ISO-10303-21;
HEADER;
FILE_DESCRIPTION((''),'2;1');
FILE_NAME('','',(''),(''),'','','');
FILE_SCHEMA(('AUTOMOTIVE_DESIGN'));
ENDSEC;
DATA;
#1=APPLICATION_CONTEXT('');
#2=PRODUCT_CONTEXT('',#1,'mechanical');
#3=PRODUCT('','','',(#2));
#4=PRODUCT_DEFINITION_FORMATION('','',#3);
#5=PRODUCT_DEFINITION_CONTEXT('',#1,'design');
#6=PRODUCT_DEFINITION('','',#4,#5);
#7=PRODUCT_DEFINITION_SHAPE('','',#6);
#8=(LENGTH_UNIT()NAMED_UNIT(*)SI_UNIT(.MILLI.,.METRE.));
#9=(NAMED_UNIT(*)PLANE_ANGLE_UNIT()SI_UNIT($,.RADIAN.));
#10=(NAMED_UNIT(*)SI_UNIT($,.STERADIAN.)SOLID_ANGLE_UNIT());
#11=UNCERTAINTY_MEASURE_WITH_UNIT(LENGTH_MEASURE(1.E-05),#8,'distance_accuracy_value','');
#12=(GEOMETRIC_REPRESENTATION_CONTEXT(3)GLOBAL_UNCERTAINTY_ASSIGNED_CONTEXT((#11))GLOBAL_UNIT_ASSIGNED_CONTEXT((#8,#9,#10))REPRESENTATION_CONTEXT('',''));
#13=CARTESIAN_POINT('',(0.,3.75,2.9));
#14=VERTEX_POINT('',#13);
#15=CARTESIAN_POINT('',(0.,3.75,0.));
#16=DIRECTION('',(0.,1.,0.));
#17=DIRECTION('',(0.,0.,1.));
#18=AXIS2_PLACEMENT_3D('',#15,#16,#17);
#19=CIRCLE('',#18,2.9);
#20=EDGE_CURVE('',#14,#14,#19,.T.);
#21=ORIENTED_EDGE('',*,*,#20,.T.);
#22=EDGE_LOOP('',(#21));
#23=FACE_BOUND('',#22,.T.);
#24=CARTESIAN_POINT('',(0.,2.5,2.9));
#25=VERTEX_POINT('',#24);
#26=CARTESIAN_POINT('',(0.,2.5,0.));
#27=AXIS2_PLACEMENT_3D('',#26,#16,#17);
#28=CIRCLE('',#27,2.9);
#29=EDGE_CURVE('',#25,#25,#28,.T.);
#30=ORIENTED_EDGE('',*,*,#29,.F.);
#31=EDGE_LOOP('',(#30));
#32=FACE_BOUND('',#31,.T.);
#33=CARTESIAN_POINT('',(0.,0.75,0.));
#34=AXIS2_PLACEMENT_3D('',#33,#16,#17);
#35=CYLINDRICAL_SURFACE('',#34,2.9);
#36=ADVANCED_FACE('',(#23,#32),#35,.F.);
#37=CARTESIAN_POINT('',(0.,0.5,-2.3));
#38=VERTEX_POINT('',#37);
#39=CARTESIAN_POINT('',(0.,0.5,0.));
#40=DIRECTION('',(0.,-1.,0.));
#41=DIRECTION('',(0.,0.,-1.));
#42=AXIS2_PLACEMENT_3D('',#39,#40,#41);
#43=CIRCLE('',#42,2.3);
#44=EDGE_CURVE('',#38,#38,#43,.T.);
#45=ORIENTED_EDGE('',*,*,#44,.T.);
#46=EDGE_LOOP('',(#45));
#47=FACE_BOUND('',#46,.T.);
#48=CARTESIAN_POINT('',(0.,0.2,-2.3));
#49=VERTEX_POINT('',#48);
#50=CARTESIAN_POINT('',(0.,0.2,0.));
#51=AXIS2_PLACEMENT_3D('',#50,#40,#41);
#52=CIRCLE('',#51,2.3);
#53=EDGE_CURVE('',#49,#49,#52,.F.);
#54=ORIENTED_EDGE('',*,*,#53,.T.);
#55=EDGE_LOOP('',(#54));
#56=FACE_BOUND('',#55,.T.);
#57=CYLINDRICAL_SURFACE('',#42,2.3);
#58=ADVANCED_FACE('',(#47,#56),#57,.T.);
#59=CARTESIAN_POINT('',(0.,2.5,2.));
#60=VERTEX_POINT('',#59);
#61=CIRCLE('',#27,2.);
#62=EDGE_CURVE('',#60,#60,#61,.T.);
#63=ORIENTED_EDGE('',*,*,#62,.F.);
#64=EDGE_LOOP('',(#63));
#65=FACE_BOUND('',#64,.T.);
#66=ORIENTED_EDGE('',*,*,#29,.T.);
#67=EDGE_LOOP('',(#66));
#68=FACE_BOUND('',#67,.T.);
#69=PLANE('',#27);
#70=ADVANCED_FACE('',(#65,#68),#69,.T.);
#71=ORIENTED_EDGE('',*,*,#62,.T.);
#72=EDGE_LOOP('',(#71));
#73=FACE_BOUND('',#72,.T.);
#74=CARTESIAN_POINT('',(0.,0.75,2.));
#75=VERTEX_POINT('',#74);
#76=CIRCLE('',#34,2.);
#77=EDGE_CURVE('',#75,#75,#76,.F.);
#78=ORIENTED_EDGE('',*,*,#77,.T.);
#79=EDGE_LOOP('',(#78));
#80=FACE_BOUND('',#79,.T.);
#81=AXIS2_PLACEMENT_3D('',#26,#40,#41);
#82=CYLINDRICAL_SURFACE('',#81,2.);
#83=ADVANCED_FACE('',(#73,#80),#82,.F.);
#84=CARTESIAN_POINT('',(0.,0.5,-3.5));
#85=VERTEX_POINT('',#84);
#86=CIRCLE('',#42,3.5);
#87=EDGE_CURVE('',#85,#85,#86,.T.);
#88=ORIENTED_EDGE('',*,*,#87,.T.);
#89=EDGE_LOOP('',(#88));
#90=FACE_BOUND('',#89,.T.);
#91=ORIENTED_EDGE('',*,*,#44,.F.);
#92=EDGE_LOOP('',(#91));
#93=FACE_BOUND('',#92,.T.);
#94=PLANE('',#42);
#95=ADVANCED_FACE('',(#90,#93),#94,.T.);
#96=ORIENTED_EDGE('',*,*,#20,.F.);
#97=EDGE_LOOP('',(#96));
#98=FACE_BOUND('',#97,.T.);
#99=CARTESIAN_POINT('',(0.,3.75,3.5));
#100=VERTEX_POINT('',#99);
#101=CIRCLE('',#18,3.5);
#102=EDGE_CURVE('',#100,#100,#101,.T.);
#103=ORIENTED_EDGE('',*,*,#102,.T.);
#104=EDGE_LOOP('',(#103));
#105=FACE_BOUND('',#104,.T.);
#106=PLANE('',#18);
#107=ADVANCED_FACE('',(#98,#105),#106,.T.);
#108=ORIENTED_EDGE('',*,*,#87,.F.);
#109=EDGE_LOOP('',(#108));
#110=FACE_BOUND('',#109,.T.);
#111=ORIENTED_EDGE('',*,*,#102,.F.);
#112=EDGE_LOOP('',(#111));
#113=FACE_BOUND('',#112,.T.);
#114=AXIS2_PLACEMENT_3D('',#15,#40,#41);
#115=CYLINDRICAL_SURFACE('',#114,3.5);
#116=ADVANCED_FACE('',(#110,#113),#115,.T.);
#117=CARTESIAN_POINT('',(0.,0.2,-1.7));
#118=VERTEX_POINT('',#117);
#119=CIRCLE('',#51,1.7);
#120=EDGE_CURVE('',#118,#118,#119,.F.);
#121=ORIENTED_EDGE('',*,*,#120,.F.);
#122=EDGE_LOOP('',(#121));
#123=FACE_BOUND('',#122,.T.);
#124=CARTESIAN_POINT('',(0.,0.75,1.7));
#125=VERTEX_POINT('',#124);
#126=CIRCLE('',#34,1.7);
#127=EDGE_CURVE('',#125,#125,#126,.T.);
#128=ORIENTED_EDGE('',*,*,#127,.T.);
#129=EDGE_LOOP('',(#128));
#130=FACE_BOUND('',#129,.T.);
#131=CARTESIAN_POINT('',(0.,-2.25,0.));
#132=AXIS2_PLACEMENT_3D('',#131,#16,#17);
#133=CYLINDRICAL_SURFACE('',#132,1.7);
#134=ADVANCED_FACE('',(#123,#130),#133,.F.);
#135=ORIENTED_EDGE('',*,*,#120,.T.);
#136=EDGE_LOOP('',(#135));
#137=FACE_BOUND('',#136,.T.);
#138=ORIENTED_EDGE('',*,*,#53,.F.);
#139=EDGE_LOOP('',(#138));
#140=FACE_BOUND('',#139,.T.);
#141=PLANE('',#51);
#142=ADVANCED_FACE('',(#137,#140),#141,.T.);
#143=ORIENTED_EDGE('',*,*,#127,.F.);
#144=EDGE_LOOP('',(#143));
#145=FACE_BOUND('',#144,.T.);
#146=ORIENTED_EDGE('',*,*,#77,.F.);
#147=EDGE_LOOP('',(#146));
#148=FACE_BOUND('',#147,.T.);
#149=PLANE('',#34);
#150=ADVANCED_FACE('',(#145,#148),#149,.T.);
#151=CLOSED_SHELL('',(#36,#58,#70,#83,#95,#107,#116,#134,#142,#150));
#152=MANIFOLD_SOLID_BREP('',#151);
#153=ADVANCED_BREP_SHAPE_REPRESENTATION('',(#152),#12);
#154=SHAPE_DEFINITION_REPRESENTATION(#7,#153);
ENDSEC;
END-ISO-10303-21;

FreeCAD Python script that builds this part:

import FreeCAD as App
import Part
import Sketcher
from FreeCAD import Vector

doc = App.newDocument("Part")
body = doc.addObject("PartDesign::Body", "Body")

sketch1 = body.newObject("Sketcher::SketchObject", "Sketch")
sketch1.AttachmentSupport = (doc.getObject("XZ_Plane"), [""])
sketch1.MapMode = "FlatFace"
sketch1.addGeometry(Part.Circle(Vector(0, 0, 0), Vector(0, 0, 1), 3.5), False)
sketch1.addConstraint(Sketcher.Constraint("Coincident", 0, 3, -1, 1))
sketch1.addConstraint(Sketcher.Constraint("Diameter", 0, 7.0))
pad1 = body.newObject("PartDesign::Pad", "Pad")
pad1.Profile = sketch1
pad1.Length = 3.75
pad1.Reversed = True

sketch2 = body.newObject("Sketcher::SketchObject", "Sketch001")
sketch2.AttachmentSupport = (doc.getObject("XZ_Plane"), [""])
sketch2.MapMode = "FlatFace"
sketch2.AttachmentOffset = App.Placement(Vector(0, 0, -3.75), App.Rotation())
sketch2.addGeometry(Part.Circle(Vector(0, 0, 0), Vector(0, 0, 1), 2.9), False)
sketch2.addConstraint(Sketcher.Constraint("Coincident", 0, 3, -1, 1))
sketch2.addConstraint(Sketcher.Constraint("Diameter", 0, 5.8))
pocket1 = body.newObject("PartDesign::Pocket", "Pocket")
pocket1.Profile = sketch2
pocket1.Length = 3
pocket1.Reversed = True

sketch3 = body.newObject("Sketcher::SketchObject", "Sketch002")
sketch3.AttachmentSupport = (doc.getObject("XZ_Plane"), [""])
sketch3.MapMode = "FlatFace"
sketch3.AttachmentOffset = App.Placement(Vector(0, 0, -0.75), App.Rotation())
sketch3.addGeometry(Part.Circle(Vector(0, 0, 0), Vector(0, 0, 1), 1.7), False)
sketch3.addConstraint(Sketcher.Constraint("Coincident", 0, 3, -1, 1))
sketch3.addConstraint(Sketcher.Constraint("Diameter", 0, 3.4))
pocket2 = body.newObject("PartDesign::Pocket", "Pocket001")
pocket2.Profile = sketch3
pocket2.Length = 3
pocket2.Reversed = True

sketch4 = body.newObject("Sketcher::SketchObject", "Sketch003")
sketch4.AttachmentSupport = (doc.getObject("XZ_Plane"), [""])
sketch4.MapMode = "FlatFace"
sketch4.addGeometry(Part.Circle(Vector(0, 0, 0), Vector(0, 0, 1), 3.5), False)
sketch4.addGeometry(Part.Circle(Vector(0, 0, 0), Vector(0, 0, 1), 2.3), False)
sketch4.addConstraint(Sketcher.Constraint("Coincident", 0, 3, -1, 1))
sketch4.addConstraint(Sketcher.Constraint("Coincident", 1, 3, -1, 1))
sketch4.addConstraint(Sketcher.Constraint("Diameter", 0, 7.0))
sketch4.addConstraint(Sketcher.Constraint("Diameter", 1, 4.6))
pocket3 = body.newObject("PartDesign::Pocket", "Pocket002")
pocket3.Profile = sketch4
pocket3.Length = 0.5

sketch5 = body.newObject("Sketcher::SketchObject", "Sketch004")
sketch5.AttachmentSupport = (doc.getObject("XZ_Plane"), [""])
sketch5.MapMode = "FlatFace"
sketch5.AttachmentOffset = App.Placement(Vector(0, 0, -2.5), App.Rotation())
sketch5.addGeometry(Part.Circle(Vector(0, 0, 0), Vector(0, 0, 1), 2.9), False)
sketch5.addGeometry(Part.Circle(Vector(0, 0, 0), Vector(0, 0, 1), 2), False)
sketch5.addConstraint(Sketcher.Constraint("Coincident", 0, 3, -1, 1))
sketch5.addConstraint(Sketcher.Constraint("Coincident", 1, 3, -1, 1))
sketch5.addConstraint(Sketcher.Constraint("Diameter", 1, 4.0))
sketch5.addConstraint(Sketcher.Constraint("Diameter", 0, 5.8))
pad2 = body.newObject("PartDesign::Pad", "Pad001")
pad2.Profile = sketch5
pad2.Length = 1.75

sketch6 = body.newObject("Sketcher::SketchObject", "Sketch005")
sketch6.AttachmentSupport = (doc.getObject("XZ_Plane"), [""])
sketch6.MapMode = "FlatFace"
sketch6.addGeometry(Part.Circle(Vector(0, 0, 0), Vector(0, 0, 1), 2.6), False)
sketch6.addConstraint(Sketcher.Constraint("Coincident", 0, 3, -1, 1))
sketch6.addConstraint(Sketcher.Constraint("Diameter", 0, 5.238338))
pocket4 = body.newObject("PartDesign::Pocket", "Pocket003")
pocket4.Profile = sketch6
pocket4.Length = 0.2

doc.recompute()
